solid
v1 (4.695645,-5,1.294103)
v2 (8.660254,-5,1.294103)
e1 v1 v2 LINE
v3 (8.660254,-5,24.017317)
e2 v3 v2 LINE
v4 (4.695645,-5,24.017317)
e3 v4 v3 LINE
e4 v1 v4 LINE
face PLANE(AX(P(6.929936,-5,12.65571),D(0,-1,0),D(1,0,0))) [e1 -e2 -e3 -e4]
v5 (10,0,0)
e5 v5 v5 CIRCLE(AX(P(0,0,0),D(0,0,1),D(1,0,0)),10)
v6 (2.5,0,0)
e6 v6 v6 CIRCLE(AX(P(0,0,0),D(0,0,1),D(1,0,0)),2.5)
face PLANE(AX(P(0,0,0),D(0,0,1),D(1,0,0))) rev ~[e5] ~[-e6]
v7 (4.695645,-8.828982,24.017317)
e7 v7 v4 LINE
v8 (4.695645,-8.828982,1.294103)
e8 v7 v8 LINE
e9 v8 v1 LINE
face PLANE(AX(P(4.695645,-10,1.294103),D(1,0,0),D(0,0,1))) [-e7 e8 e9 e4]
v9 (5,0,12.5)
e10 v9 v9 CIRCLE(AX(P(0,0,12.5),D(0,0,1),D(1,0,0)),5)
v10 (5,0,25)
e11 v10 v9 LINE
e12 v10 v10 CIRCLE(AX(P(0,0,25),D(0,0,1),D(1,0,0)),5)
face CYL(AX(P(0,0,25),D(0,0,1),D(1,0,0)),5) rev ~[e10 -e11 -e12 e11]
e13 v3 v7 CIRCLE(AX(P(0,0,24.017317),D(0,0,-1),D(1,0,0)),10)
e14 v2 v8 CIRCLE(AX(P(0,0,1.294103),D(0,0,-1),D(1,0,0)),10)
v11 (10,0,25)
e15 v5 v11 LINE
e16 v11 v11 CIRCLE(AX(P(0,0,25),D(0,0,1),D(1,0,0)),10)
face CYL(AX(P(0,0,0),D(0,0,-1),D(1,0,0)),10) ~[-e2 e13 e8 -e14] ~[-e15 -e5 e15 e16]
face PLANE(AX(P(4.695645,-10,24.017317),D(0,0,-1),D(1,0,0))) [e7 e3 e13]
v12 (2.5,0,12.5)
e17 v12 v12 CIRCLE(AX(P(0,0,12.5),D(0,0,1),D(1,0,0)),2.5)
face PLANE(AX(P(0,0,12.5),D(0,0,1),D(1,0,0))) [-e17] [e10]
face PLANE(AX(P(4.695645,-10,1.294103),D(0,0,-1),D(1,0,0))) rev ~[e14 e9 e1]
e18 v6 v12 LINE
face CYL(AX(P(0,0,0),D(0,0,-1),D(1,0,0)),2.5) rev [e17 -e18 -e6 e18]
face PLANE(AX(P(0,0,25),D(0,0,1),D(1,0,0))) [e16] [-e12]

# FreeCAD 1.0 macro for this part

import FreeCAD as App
import Part
import Sketcher
from FreeCAD import Vector


def add_polygon(sketch, points):
    """Adds a closed chain of lines whose ends are joined by coincident constraints."""
    first, n = sketch.GeometryCount, len(points)
    for a, b in zip(points, points[1:] + points[:1]):
        sketch.addGeometry(Part.LineSegment(App.Vector(*a, 0), App.Vector(*b, 0)), False)
    for i in range(n):
        sketch.addConstraint(Sketcher.Constraint("Coincident", first + i, 2, first + (i + 1) % n, 1))

doc = App.newDocument("Part")
body = doc.addObject("PartDesign::Body", "Body")

sketch1 = body.newObject("Sketcher::SketchObject", "Sketch")
sketch1.AttachmentSupport = (doc.getObject("XY_Plane"), [""])
sketch1.MapMode = "FlatFace"
sketch1.addGeometry([
    Part.Circle(Vector(0, 0, 0), Vector(0, 0, 1), 10),
    Part.Circle(Vector(0, 0, 0), Vector(0, 0, 1), 2.5),
], False)
sketch1.addConstraint([
    Sketcher.Constraint("Coincident", 0, 3, -1, 1),
    Sketcher.Constraint("Coincident", 1, 3, -1, 1),
    Sketcher.Constraint("Diameter", 0, 20.0),
    Sketcher.Constraint("Diameter", 1, 5.0),
])
pad1 = body.newObject("PartDesign::Pad", "Pad")
pad1.Profile = sketch1
pad1.Length = 25

sketch2 = body.newObject("Sketcher::SketchObject", "Sketch001")
sketch2.AttachmentSupport = (doc.getObject("XY_Plane"), [""])
sketch2.MapMode = "FlatFace"
sketch2.AttachmentOffset = App.Placement(Vector(0, 0, 25), App.Rotation())
sketch2.addGeometry([
    Part.Circle(Vector(0, 0, 0), Vector(0, 0, 1), 5),
    Part.Circle(Vector(0, 0, 0), Vector(0, 0, 1), 2.5),
], False)
sketch2.addConstraint([
    Sketcher.Constraint("Coincident", 0, 3, -1, 1),
    Sketcher.Constraint("Coincident", 1, 3, -1, 1),
    Sketcher.Constraint("Diameter", 0, 10.0),
    Sketcher.Constraint("Diameter", 1, 5.0),
])
pocket1 = body.newObject("PartDesign::Pocket", "Pocket")
pocket1.Profile = sketch2
pocket1.Length = 12.5

sketch3 = body.newObject("Sketcher::SketchObject", "Sketch002")
sketch3.AttachmentSupport = (doc.getObject("XZ_Plane"), [""])
sketch3.MapMode = "FlatFace"
sketch3.AttachmentOffset = App.Placement(Vector(0, 0, 10), App.Rotation())
add_polygon(sketch3, [(4.7, 24), (4.7, 1.3), (9.2, 1.3), (9.2, 24)])
sketch3.addConstraint([
    Sketcher.Constraint("Vertical", 0),
    Sketcher.Constraint("Horizontal", 1),
    Sketcher.Constraint("Vertical", 2),
    Sketcher.Constraint("Horizontal", 3),
    Sketcher.Constraint("DistanceX", 1, 1, 1, 2, 4.468582),
    Sketcher.Constraint("DistanceY", 0, 2, 0, 1, 22.723214),
    Sketcher.Constraint("DistanceX", -1, 1, 0, 2, 4.695645),
    Sketcher.Constraint("DistanceY", -1, 1, 0, 2, 1.294103),
])
pocket2 = body.newObject("PartDesign::Pocket", "Pocket001")
pocket2.Profile = sketch3
pocket2.Length = 5

doc.recompute()
